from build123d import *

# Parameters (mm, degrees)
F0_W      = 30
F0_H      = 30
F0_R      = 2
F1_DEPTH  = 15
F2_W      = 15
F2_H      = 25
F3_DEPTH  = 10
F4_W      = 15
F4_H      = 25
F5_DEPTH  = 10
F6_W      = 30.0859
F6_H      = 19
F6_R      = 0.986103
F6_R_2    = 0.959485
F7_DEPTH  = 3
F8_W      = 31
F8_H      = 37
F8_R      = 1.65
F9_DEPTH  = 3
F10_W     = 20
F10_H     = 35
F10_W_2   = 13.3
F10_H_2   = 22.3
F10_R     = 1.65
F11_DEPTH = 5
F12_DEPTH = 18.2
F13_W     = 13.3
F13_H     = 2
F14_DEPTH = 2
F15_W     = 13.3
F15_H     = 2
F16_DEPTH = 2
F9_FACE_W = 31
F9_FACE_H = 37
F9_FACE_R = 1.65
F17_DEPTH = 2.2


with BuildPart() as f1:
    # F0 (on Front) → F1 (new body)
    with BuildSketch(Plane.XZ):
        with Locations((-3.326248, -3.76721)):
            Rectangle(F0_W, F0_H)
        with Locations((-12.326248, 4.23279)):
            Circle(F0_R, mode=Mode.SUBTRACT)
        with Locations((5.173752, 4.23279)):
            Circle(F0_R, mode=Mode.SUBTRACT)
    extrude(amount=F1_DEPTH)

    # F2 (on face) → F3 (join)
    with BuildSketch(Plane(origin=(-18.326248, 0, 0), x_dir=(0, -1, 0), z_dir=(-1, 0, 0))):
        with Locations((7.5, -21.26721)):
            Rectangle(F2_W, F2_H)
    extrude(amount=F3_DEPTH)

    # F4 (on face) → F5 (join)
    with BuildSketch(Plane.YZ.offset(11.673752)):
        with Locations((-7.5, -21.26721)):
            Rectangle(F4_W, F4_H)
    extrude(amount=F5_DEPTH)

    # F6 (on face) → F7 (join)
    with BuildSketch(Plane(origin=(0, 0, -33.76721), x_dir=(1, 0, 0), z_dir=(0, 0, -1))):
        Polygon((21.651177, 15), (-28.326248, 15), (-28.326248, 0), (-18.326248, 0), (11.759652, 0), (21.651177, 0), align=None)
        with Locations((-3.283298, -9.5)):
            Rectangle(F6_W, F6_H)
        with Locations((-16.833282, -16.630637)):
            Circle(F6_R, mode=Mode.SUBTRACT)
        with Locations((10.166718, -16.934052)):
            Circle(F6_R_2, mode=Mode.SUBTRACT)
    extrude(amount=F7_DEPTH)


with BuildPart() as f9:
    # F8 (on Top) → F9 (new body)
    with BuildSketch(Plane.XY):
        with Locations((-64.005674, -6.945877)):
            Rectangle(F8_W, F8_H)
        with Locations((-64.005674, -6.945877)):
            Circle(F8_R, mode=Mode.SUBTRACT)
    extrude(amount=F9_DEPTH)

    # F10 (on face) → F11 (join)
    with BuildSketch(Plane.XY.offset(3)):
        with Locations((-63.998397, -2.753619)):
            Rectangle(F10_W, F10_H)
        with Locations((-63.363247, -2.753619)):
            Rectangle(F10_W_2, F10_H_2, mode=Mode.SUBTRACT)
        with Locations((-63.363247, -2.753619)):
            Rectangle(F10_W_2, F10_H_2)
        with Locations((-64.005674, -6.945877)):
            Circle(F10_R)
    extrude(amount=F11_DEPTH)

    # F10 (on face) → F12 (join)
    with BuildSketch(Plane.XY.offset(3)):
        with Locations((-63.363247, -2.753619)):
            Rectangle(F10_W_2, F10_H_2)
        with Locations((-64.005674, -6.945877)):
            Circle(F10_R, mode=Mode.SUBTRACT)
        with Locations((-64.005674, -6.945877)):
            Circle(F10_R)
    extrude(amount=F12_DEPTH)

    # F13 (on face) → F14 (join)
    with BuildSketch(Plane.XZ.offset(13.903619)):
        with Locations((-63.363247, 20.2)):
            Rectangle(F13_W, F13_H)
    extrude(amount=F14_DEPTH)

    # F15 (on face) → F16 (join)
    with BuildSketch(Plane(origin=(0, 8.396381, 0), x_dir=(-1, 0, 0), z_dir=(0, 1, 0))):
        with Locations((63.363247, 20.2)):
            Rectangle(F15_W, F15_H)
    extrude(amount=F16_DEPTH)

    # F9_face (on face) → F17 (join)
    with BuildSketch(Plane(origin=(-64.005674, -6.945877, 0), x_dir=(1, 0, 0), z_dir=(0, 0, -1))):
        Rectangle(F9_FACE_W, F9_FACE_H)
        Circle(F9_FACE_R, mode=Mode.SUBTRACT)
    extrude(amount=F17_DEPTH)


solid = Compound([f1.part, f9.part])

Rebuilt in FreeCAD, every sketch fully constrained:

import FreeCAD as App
import Part
import Sketcher
from FreeCAD import Vector

doc = App.newDocument("Part")
body = doc.addObject("PartDesign::Body", "Body")

# Sketch on XZ plane
sketch1 = body.newObject("Sketcher::SketchObject", "Sketch")
sketch1.AttachmentSupport = (doc.getObject("XZ_Plane"), [""])
sketch1.MapMode = "FlatFace"
sketch1.addGeometry(Part.LineSegment(Vector(-18.3, 11.2, 0), Vector(-18.3, -18.8, 0)), False)
sketch1.addGeometry(Part.LineSegment(Vector(-18.3, -18.8, 0), Vector(11.7, -18.8, 0)), False)
sketch1.addGeometry(Part.LineSegment(Vector(11.7, -18.8, 0), Vector(11.7, 11.2, 0)), False)
sketch1.addGeometry(Part.LineSegment(Vector(11.7, 11.2, 0), Vector(-18.3, 11.2, 0)), False)
sketch1.addGeometry(Part.Circle(Vector(-12.3, 4.2, 0), Vector(0, 0, 1), 2), False)
sketch1.addGeometry(Part.Circle(Vector(5.2, 4.2, 0), Vector(0, 0, 1), 2), False)
sketch1.addConstraint(Sketcher.Constraint("Coincident", 0, 2, 1, 1))
sketch1.addConstraint(Sketcher.Constraint("Coincident", 1, 2, 2, 1))
sketch1.addConstraint(Sketcher.Constraint("Coincident", 2, 2, 3, 1))
sketch1.addConstraint(Sketcher.Constraint("Coincident", 3, 2, 0, 1))
sketch1.addConstraint(Sketcher.Constraint("Vertical", 0))
sketch1.addConstraint(Sketcher.Constraint("Horizontal", 1))
sketch1.addConstraint(Sketcher.Constraint("Vertical", 2))
sketch1.addConstraint(Sketcher.Constraint("Horizontal", 3))
sketch1.addConstraint(Sketcher.Constraint("Equal", 4, 5))
sketch1.addConstraint(Sketcher.Constraint("Horizontal", 4, 3, 5, 3))
sketch1.addConstraint(Sketcher.Constraint("Equal", 3, 0))
sketch1.addConstraint(Sketcher.Constraint("Diameter", 4, 4.0))
sketch1.addConstraint(Sketcher.Constraint("DistanceX", 1, 1, 1, 2, 30.0))
sketch1.addConstraint(Sketcher.Constraint("DistanceX", 0, 2, 4, 3, 6.0))
sketch1.addConstraint(Sketcher.Constraint("DistanceY", 0, 2, 4, 3, 23.0))
sketch1.addConstraint(Sketcher.Constraint("DistanceX", 4, 3, 5, 3, 17.5))
sketch1.addConstraint(Sketcher.Constraint("DistanceY", -1, 1, 4, 3, 4.23279))
sketch1.addConstraint(Sketcher.Constraint("DistanceX", 4, 3, -1, 1, 12.326248))
pad1 = body.newObject("PartDesign::Pad", "Pad")
pad1.Profile = sketch1
pad1.Length = 15

# Sketch on YZ plane
sketch2 = body.newObject("Sketcher::SketchObject", "Sketch001")
sketch2.AttachmentSupport = (doc.getObject("YZ_Plane"), [""])
sketch2.MapMode = "FlatFace"
sketch2.AttachmentOffset = App.Placement(Vector(0, 0, -18.326248), App.Rotation())
sketch2.addGeometry(Part.LineSegment(Vector(0, -9, 0), Vector(0, -34, 0)), False)
sketch2.addGeometry(Part.LineSegment(Vector(0, -34, 0), Vector(-15, -34, 0)), False)
sketch2.addGeometry(Part.LineSegment(Vector(-15, -34, 0), Vector(-15, -9, 0)), False)
sketch2.addGeometry(Part.LineSegment(Vector(-15, -9, 0), Vector(0, -9, 0)), False)
sketch2.addConstraint(Sketcher.Constraint("Coincident", 0, 2, 1, 1))
sketch2.addConstraint(Sketcher.Constraint("Coincident", 1, 2, 2, 1))
sketch2.addConstraint(Sketcher.Constraint("Coincident", 2, 2, 3, 1))
sketch2.addConstraint(Sketcher.Constraint("Coincident", 3, 2, 0, 1))
sketch2.addConstraint(Sketcher.Constraint("Vertical", 0))
sketch2.addConstraint(Sketcher.Constraint("Horizontal", 1))
sketch2.addConstraint(Sketcher.Constraint("Vertical", 2))
sketch2.addConstraint(Sketcher.Constraint("Horizontal", 3))
sketch2.addConstraint(Sketcher.Constraint("PointOnObject", 0, 2, -2))
sketch2.addConstraint(Sketcher.Constraint("DistanceX", 1, 2, 1, 1, 15.0))
sketch2.addConstraint(Sketcher.Constraint("DistanceY", 0, 2, 0, 1, 25.0))
sketch2.addConstraint(Sketcher.Constraint("DistanceY", 0, 2, -1, 1, 33.76721))
pad2 = body.newObject("PartDesign::Pad", "Pad001")
pad2.Profile = sketch2
pad2.Length = 10
pad2.Reversed = True

# Sketch on YZ plane
sketch3 = body.newObject("Sketcher::SketchObject", "Sketch002")
sketch3.AttachmentSupport = (doc.getObject("YZ_Plane"), [""])
sketch3.MapMode = "FlatFace"
sketch3.AttachmentOffset = App.Placement(Vector(0, 0, 11.673752), App.Rotation())
sketch3.addGeometry(Part.LineSegment(Vector(-15, -9, 0), Vector(-15, -34, 0)), False)
sketch3.addGeometry(Part.LineSegment(Vector(-15, -34, 0), Vector(0, -34, 0)), False)
sketch3.addGeometry(Part.LineSegment(Vector(0, -34, 0), Vector(0, -9, 0)), False)
sketch3.addGeometry(Part.LineSegment(Vector(0, -9, 0), Vector(-15, -9, 0)), False)
sketch3.addConstraint(Sketcher.Constraint("Coincident", 0, 2, 1, 1))
sketch3.addConstraint(Sketcher.Constraint("Coincident", 1, 2, 2, 1))
sketch3.addConstraint(Sketcher.Constraint("Coincident", 2, 2, 3, 1))
sketch3.addConstraint(Sketcher.Constraint("Coincident", 3, 2, 0, 1))
sketch3.addConstraint(Sketcher.Constraint("Vertical", 0))
sketch3.addConstraint(Sketcher.Constraint("Horizontal", 1))
sketch3.addConstraint(Sketcher.Constraint("Vertical", 2))
sketch3.addConstraint(Sketcher.Constraint("Horizontal", 3))
sketch3.addConstraint(Sketcher.Constraint("PointOnObject", 1, 2, -2))
sketch3.addConstraint(Sketcher.Constraint("DistanceX", 1, 1, 1, 2, 15.0))
sketch3.addConstraint(Sketcher.Constraint("DistanceY", 0, 2, 0, 1, 25.0))
sketch3.addConstraint(Sketcher.Constraint("DistanceY", 0, 2, -1, 1, 33.76721))
pad3 = body.newObject("PartDesign::Pad", "Pad002")
pad3.Profile = sketch3
pad3.Length = 10

# Sketch on XY plane
sketch4 = body.newObject("Sketcher::SketchObject", "Sketch003")
sketch4.AttachmentSupport = (doc.getObject("XY_Plane"), [""])
sketch4.MapMode = "FlatFace"
sketch4.AttachmentOffset = App.Placement(Vector(0, 0, -33.76721), App.Rotation())
sketch4.addGeometry(Part.LineSegment(Vector(21.7, -15, 0), Vector(-28.3, -15, 0)), False)
sketch4.addGeometry(Part.LineSegment(Vector(-28.3, -15, 0), Vector(-28.3, 0, 0)), False)
sketch4.addGeometry(Part.LineSegment(Vector(-28.3, 0, 0), Vector(-18.3, 0, 0)), False)
sketch4.addGeometry(Part.LineSegment(Vector(-18.3, 0, 0), Vector(-18.3, 19, 0)), False)
sketch4.addGeometry(Part.LineSegment(Vector(-18.3, 19, 0), Vector(11.8, 19, 0)), False)
sketch4.addGeometry(Part.LineSegment(Vector(11.8, 19, 0), Vector(11.8, 0, 0)), False)
sketch4.addGeometry(Part.LineSegment(Vector(11.8, 0, 0), Vector(21.7, 0, 0)), False)
sketch4.addGeometry(Part.LineSegment(Vector(21.7, 0, 0), Vector(21.7, -15, 0)), False)
sketch4.addGeometry(Part.Circle(Vector(10.2, 16.9, 0), Vector(0, 0, 1), 1), False)
sketch4.addGeometry(Part.Circle(Vector(-16.8, 16.6, 0), Vector(0, 0, 1), 1), False)
sketch4.addConstraint(Sketcher.Constraint("Coincident", 0, 2, 1, 1))
sketch4.addConstraint(Sketcher.Constraint("Coincident", 1, 2, 2, 1))
sketch4.addConstraint(Sketcher.Constraint("Coincident", 2, 2, 3, 1))
sketch4.addConstraint(Sketcher.Constraint("Coincident", 3, 2, 4, 1))
sketch4.addConstraint(Sketcher.Constraint("Coincident", 4, 2, 5, 1))
sketch4.addConstraint(Sketcher.Constraint("Coincident", 5, 2, 6, 1))
sketch4.addConstraint(Sketcher.Constraint("Coincident", 6, 2, 7, 1))
sketch4.addConstraint(Sketcher.Constraint("Coincident", 7, 2, 0, 1))
sketch4.addConstraint(Sketcher.Constraint("Horizontal", 0))
sketch4.addConstraint(Sketcher.Constraint("Vertical", 1))
sketch4.addConstraint(Sketcher.Constraint("Horizontal", 2))
sketch4.addConstraint(Sketcher.Constraint("Vertical", 3))
sketch4.addConstraint(Sketcher.Constraint("Horizontal", 4))
sketch4.addConstraint(Sketcher.Constraint("Vertical", 5))
sketch4.addConstraint(Sketcher.Constraint("Horizontal", 6))
sketch4.addConstraint(Sketcher.Constraint("Vertical", 7))
sketch4.addConstraint(Sketcher.Constraint("PointOnObject", 1, 2, -1))
sketch4.addConstraint(Sketcher.Constraint("PointOnObject", 5, 2, -1))
sketch4.addConstraint(Sketcher.Constraint("DistanceX", 2, 1, 2, 2, 10.0))
sketch4.addConstraint(Sketcher.Constraint("DistanceY", 1, 1, 1, 2, 15.0))
sketch4.addConstraint(Sketcher.Constraint("DistanceY", 3, 1, 3, 2, 19.0))
sketch4.addConstraint(Sketcher.Constraint("DistanceX", 9, 3, 8, 3, 27.0))
sketch4.addConstraint(Sketcher.Constraint("Diameter", 8, 1.91897))
sketch4.addConstraint(Sketcher.Constraint("Diameter", 9, 1.972206))
sketch4.addConstraint(Sketcher.Constraint("DistanceX", 4, 1, 4, 2, 30.0859))
sketch4.addConstraint(Sketcher.Constraint("DistanceX", 0, 2, 0, 1, 49.977425))
sketch4.addConstraint(Sketcher.Constraint("DistanceX", 8, 3, 6, 2, 11.484459))
sketch4.addConstraint(Sketcher.Constraint("DistanceX", -1, 1, 8, 3, 10.166718))
sketch4.addConstraint(Sketcher.Constraint("DistanceY", -1, 1, 8, 3, 16.934052))
sketch4.addConstraint(Sketcher.Constraint("DistanceY", -1, 1, 9, 3, 16.630637))
pad4 = body.newObject("PartDesign::Pad", "Pad003")
pad4.Profile = sketch4
pad4.Length = 3
pad4.Reversed = True
body2 = doc.addObject("PartDesign::Body", "Body001")

# Sketch on XY plane
sketch5 = body2.newObject("Sketcher::SketchObject", "Sketch004")
sketch5.AttachmentSupport = (doc.getObject("XY_Plane001"), [""])
sketch5.MapMode = "FlatFace"
sketch5.addGeometry(Part.LineSegment(Vector(-79.5, 11.6, 0), Vector(-79.5, -25.4, 0)), False)
sketch5.addGeometry(Part.LineSegment(Vector(-79.5, -25.4, 0), Vector(-48.5, -25.4, 0)), False)
sketch5.addGeometry(Part.LineSegment(Vector(-48.5, -25.4, 0), Vector(-48.5, 11.6, 0)), False)
sketch5.addGeometry(Part.LineSegment(Vector(-48.5, 11.6, 0), Vector(-79.5, 11.6, 0)), False)
sketch5.addGeometry(Part.Circle(Vector(-64, -6.9, 0), Vector(0, 0, 1), 1.6), False)
sketch5.addConstraint(Sketcher.Constraint("Coincident", 0, 2, 1, 1))
sketch5.addConstraint(Sketcher.Constraint("Coincident", 1, 2, 2, 1))
sketch5.addConstraint(Sketcher.Constraint("Coincident", 2, 2, 3, 1))
sketch5.addConstraint(Sketcher.Constraint("Coincident", 3, 2, 0, 1))
sketch5.addConstraint(Sketcher.Constraint("Vertical", 0))
sketch5.addConstraint(Sketcher.Constraint("Horizontal", 1))
sketch5.addConstraint(Sketcher.Constraint("Vertical", 2))
sketch5.addConstraint(Sketcher.Constraint("Horizontal", 3))
sketch5.addConstraint(Sketcher.Constraint("Diameter", 4, 3.3))
sketch5.addConstraint(Sketcher.Constraint("DistanceX", 1, 1, 1, 2, 31.0))
sketch5.addConstraint(Sketcher.Constraint("DistanceY", 0, 2, 0, 1, 37.0))
sketch5.addConstraint(Sketcher.Constraint("DistanceX", 0, 2, 4, 3, 15.5))
sketch5.addConstraint(Sketcher.Constraint("DistanceY", 0, 2, 4, 3, 18.5))
sketch5.addConstraint(Sketcher.Constraint("DistanceX", 4, 3, -1, 1, 64.005674))
sketch5.addConstraint(Sketcher.Constraint("DistanceY", 4, 3, -1, 1, 6.945877))
pad5 = body2.newObject("PartDesign::Pad", "Pad004")
pad5.Profile = sketch5
pad5.Length = 3

# Sketch on XY plane
sketch6 = body2.newObject("Sketcher::SketchObject", "Sketch005")
sketch6.AttachmentSupport = (doc.getObject("XY_Plane001"), [""])
sketch6.MapMode = "FlatFace"
sketch6.AttachmentOffset = App.Placement(Vector(0, 0, 3), App.Rotation())
sketch6.addGeometry(Part.LineSegment(Vector(-74, 15, 0), Vector(-74, -20, 0)), False)
sketch6.addGeometry(Part.LineSegment(Vector(-74, -20, 0), Vector(-54, -20, 0)), False)
sketch6.addGeometry(Part.LineSegment(Vector(-54, -20, 0), Vector(-54, 15, 0)), False)
sketch6.addGeometry(Part.LineSegment(Vector(-54, 15, 0), Vector(-74, 15, 0)), False)
sketch6.addConstraint(Sketcher.Constraint("Coincident", 0, 2, 1, 1))
sketch6.addConstraint(Sketcher.Constraint("Coincident", 1, 2, 2, 1))
sketch6.addConstraint(Sketcher.Constraint("Coincident", 2, 2, 3, 1))
sketch6.addConstraint(Sketcher.Constraint("Coincident", 3, 2, 0, 1))
sketch6.addConstraint(Sketcher.Constraint("Vertical", 0))
sketch6.addConstraint(Sketcher.Constraint("Horizontal", 1))
sketch6.addConstraint(Sketcher.Constraint("Vertical", 2))
sketch6.addConstraint(Sketcher.Constraint("Horizontal", 3))
sketch6.addConstraint(Sketcher.Constraint("DistanceX", 1, 1, 1, 2, 20.0))
sketch6.addConstraint(Sketcher.Constraint("DistanceY", 0, 2, 0, 1, 35.0))
sketch6.addConstraint(Sketcher.Constraint("DistanceY", 0, 2, -1, 1, 20.253619))
sketch6.addConstraint(Sketcher.Constraint("DistanceX", 0, 2, -1, 1, 73.998397))
pad6 = body2.newObject("PartDesign::Pad", "Pad005")
pad6.Profile = sketch6
pad6.Length = 5

# Sketch on XY plane
sketch7 = body2.newObject("Sketcher::SketchObject", "Sketch006")
sketch7.AttachmentSupport = (doc.getObject("XY_Plane001"), [""])
sketch7.MapMode = "FlatFace"
sketch7.AttachmentOffset = App.Placement(Vector(0, 0, 3), App.Rotation())
sketch7.addGeometry(Part.LineSegment(Vector(-70, 8, 0), Vector(-70, -14, 0)), False)
sketch7.addGeometry(Part.LineSegment(Vector(-70, -14, 0), Vector(-57, -14, 0)), False)
sketch7.addGeometry(Part.LineSegment(Vector(-57, -14, 0), Vector(-57, 8, 0)), False)
sketch7.addGeometry(Part.LineSegment(Vector(-57, 8, 0), Vector(-70, 8, 0)), False)
sketch7.addConstraint(Sketcher.Constraint("Coincident", 0, 2, 1, 1))
sketch7.addConstraint(Sketcher.Constraint("Coincident", 1, 2, 2, 1))
sketch7.addConstraint(Sketcher.Constraint("Coincident", 2, 2, 3, 1))
sketch7.addConstraint(Sketcher.Constraint("Coincident", 3, 2, 0, 1))
sketch7.addConstraint(Sketcher.Constraint("Vertical", 0))
sketch7.addConstraint(Sketcher.Constraint("Horizontal", 1))
sketch7.addConstraint(Sketcher.Constraint("Vertical", 2))
sketch7.addConstraint(Sketcher.Constraint("Horizontal", 3))
sketch7.addConstraint(Sketcher.Constraint("DistanceX", 1, 1, 1, 2, 13.3))
sketch7.addConstraint(Sketcher.Constraint("DistanceY", 0, 2, 0, 1, 22.3))
sketch7.addConstraint(Sketcher.Constraint("DistanceY", 0, 2, -1, 1, 13.903619))
sketch7.addConstraint(Sketcher.Constraint("DistanceX", 0, 2, -1, 1, 70.013247))
pad7 = body2.newObject("PartDesign::Pad", "Pad006")
pad7.Profile = sketch7
pad7.Length = 18.2

# Sketch on XZ plane
sketch8 = body2.newObject("Sketcher::SketchObject", "Sketch007")
sketch8.AttachmentSupport = (doc.getObject("XZ_Plane001"), [""])
sketch8.MapMode = "FlatFace"
sketch8.AttachmentOffset = App.Placement(Vector(0, 0, 13.903619), App.Rotation())
sketch8.addGeometry(Part.LineSegment(Vector(-70, 21.2, 0), Vector(-70, 19.2, 0)), False)
sketch8.addGeometry(Part.LineSegment(Vector(-70, 19.2, 0), Vector(-56.7, 19.2, 0)), False)
sketch8.addGeometry(Part.LineSegment(Vector(-56.7, 19.2, 0), Vector(-56.7, 21.2, 0)), False)
sketch8.addGeometry(Part.LineSegment(Vector(-56.7, 21.2, 0), Vector(-70, 21.2, 0)), False)
sketch8.addConstraint(Sketcher.Constraint("Coincident", 0, 2, 1, 1))
sketch8.addConstraint(Sketcher.Constraint("Coincident", 1, 2, 2, 1))
sketch8.addConstraint(Sketcher.Constraint("Coincident", 2, 2, 3, 1))
sketch8.addConstraint(Sketcher.Constraint("Coincident", 3, 2, 0, 1))
sketch8.addConstraint(Sketcher.Constraint("Vertical", 0))
sketch8.addConstraint(Sketcher.Constraint("Horizontal", 1))
sketch8.addConstraint(Sketcher.Constraint("Vertical", 2))
sketch8.addConstraint(Sketcher.Constraint("Horizontal", 3))
sketch8.addConstraint(Sketcher.Constraint("DistanceY", 0, 2, 0, 1, 2.0))
sketch8.addConstraint(Sketcher.Constraint("DistanceX", 1, 1, 1, 2, 13.3))
sketch8.addConstraint(Sketcher.Constraint("DistanceY", -1, 1, 0, 2, 19.2))
sketch8.addConstraint(Sketcher.Constraint("DistanceX", 0, 2, -1, 1, 70.013247))
pad8 = body2.newObject("PartDesign::Pad", "Pad007")
pad8.Profile = sketch8
pad8.Length = 2

# Sketch on XZ plane
sketch9 = body2.newObject("Sketcher::SketchObject", "Sketch008")
sketch9.AttachmentSupport = (doc.getObject("XZ_Plane001"), [""])
sketch9.MapMode = "FlatFace"
sketch9.AttachmentOffset = App.Placement(Vector(0, 0, -8.396381), App.Rotation())
sketch9.addGeometry(Part.LineSegment(Vector(-56.7, 21.2, 0), Vector(-56.7, 19.2, 0)), False)
sketch9.addGeometry(Part.LineSegment(Vector(-56.7, 19.2, 0), Vector(-70, 19.2, 0)), False)
sketch9.addGeometry(Part.LineSegment(Vector(-70, 19.2, 0), Vector(-70, 21.2, 0)), False)
sketch9.addGeometry(Part.LineSegment(Vector(-70, 21.2, 0), Vector(-56.7, 21.2, 0)), False)
sketch9.addConstraint(Sketcher.Constraint("Coincident", 0, 2, 1, 1))
sketch9.addConstraint(Sketcher.Constraint("Coincident", 1, 2, 2, 1))
sketch9.addConstraint(Sketcher.Constraint("Coincident", 2, 2, 3, 1))
sketch9.addConstraint(Sketcher.Constraint("Coincident", 3, 2, 0, 1))
sketch9.addConstraint(Sketcher.Constraint("Vertical", 0))
sketch9.addConstraint(Sketcher.Constraint("Horizontal", 1))
sketch9.addConstraint(Sketcher.Constraint("Vertical", 2))
sketch9.addConstraint(Sketcher.Constraint("Horizontal", 3))
sketch9.addConstraint(Sketcher.Constraint("DistanceY", 0, 2, 0, 1, 2.0))
sketch9.addConstraint(Sketcher.Constraint("DistanceX", 1, 2, 1, 1, 13.3))
sketch9.addConstraint(Sketcher.Constraint("DistanceY", -1, 1, 0, 2, 19.2))
sketch9.addConstraint(Sketcher.Constraint("DistanceX", 0, 2, -1, 1, 56.713247))
pad9 = body2.newObject("PartDesign::Pad", "Pad008")
pad9.Profile = sketch9
pad9.Length = 2
pad9.Reversed = True

# Sketch on XY plane
sketch10 = body2.newObject("Sketcher::SketchObject", "Sketch009")
sketch10.AttachmentSupport = (doc.getObject("XY_Plane001"), [""])
sketch10.MapMode = "FlatFace"
sketch10.addGeometry(Part.LineSegment(Vector(-79.5, -25.4, 0), Vector(-79.5, 11.6, 0)), False)
sketch10.addGeometry(Part.LineSegment(Vector(-79.5, 11.6, 0), Vector(-48.5, 11.6, 0)), False)
sketch10.addGeometry(Part.LineSegment(Vector(-48.5, 11.6, 0), Vector(-48.5, -25.4, 0)), False)
sketch10.addGeometry(Part.LineSegment(Vector(-48.5, -25.4, 0), Vector(-79.5, -25.4, 0)), False)
sketch10.addGeometry(Part.Circle(Vector(-64, -6.9, 0), Vector(0, 0, 1), 1.6), False)
sketch10.addConstraint(Sketcher.Constraint("Coincident", 0, 2, 1, 1))
sketch10.addConstraint(Sketcher.Constraint("Coincident", 1, 2, 2, 1))
sketch10.addConstraint(Sketcher.Constraint("Coincident", 2, 2, 3, 1))
sketch10.addConstraint(Sketcher.Constraint("Coincident", 3, 2, 0, 1))
sketch10.addConstraint(Sketcher.Constraint("Vertical", 0))
sketch10.addConstraint(Sketcher.Constraint("Horizontal", 1))
sketch10.addConstraint(Sketcher.Constraint("Vertical", 2))
sketch10.addConstraint(Sketcher.Constraint("Horizontal", 3))
sketch10.addConstraint(Sketcher.Constraint("Diameter", 4, 3.3))
sketch10.addConstraint(Sketcher.Constraint("DistanceX", 1, 1, 1, 2, 31.0))
sketch10.addConstraint(Sketcher.Constraint("DistanceY", 0, 1, 0, 2, 37.0))
sketch10.addConstraint(Sketcher.Constraint("DistanceX", 0, 2, 4, 3, 15.5))
sketch10.addConstraint(Sketcher.Constraint("DistanceY", 4, 3, 0, 2, 18.5))
sketch10.addConstraint(Sketcher.Constraint("DistanceX", 4, 3, -1, 1, 64.005674))
sketch10.addConstraint(Sketcher.Constraint("DistanceY", 4, 3, -1, 1, 6.945877))
pad10 = body2.newObject("PartDesign::Pad", "Pad009")
pad10.Profile = sketch10
pad10.Length = 2.2
pad10.Reversed = True

doc.recompute()
